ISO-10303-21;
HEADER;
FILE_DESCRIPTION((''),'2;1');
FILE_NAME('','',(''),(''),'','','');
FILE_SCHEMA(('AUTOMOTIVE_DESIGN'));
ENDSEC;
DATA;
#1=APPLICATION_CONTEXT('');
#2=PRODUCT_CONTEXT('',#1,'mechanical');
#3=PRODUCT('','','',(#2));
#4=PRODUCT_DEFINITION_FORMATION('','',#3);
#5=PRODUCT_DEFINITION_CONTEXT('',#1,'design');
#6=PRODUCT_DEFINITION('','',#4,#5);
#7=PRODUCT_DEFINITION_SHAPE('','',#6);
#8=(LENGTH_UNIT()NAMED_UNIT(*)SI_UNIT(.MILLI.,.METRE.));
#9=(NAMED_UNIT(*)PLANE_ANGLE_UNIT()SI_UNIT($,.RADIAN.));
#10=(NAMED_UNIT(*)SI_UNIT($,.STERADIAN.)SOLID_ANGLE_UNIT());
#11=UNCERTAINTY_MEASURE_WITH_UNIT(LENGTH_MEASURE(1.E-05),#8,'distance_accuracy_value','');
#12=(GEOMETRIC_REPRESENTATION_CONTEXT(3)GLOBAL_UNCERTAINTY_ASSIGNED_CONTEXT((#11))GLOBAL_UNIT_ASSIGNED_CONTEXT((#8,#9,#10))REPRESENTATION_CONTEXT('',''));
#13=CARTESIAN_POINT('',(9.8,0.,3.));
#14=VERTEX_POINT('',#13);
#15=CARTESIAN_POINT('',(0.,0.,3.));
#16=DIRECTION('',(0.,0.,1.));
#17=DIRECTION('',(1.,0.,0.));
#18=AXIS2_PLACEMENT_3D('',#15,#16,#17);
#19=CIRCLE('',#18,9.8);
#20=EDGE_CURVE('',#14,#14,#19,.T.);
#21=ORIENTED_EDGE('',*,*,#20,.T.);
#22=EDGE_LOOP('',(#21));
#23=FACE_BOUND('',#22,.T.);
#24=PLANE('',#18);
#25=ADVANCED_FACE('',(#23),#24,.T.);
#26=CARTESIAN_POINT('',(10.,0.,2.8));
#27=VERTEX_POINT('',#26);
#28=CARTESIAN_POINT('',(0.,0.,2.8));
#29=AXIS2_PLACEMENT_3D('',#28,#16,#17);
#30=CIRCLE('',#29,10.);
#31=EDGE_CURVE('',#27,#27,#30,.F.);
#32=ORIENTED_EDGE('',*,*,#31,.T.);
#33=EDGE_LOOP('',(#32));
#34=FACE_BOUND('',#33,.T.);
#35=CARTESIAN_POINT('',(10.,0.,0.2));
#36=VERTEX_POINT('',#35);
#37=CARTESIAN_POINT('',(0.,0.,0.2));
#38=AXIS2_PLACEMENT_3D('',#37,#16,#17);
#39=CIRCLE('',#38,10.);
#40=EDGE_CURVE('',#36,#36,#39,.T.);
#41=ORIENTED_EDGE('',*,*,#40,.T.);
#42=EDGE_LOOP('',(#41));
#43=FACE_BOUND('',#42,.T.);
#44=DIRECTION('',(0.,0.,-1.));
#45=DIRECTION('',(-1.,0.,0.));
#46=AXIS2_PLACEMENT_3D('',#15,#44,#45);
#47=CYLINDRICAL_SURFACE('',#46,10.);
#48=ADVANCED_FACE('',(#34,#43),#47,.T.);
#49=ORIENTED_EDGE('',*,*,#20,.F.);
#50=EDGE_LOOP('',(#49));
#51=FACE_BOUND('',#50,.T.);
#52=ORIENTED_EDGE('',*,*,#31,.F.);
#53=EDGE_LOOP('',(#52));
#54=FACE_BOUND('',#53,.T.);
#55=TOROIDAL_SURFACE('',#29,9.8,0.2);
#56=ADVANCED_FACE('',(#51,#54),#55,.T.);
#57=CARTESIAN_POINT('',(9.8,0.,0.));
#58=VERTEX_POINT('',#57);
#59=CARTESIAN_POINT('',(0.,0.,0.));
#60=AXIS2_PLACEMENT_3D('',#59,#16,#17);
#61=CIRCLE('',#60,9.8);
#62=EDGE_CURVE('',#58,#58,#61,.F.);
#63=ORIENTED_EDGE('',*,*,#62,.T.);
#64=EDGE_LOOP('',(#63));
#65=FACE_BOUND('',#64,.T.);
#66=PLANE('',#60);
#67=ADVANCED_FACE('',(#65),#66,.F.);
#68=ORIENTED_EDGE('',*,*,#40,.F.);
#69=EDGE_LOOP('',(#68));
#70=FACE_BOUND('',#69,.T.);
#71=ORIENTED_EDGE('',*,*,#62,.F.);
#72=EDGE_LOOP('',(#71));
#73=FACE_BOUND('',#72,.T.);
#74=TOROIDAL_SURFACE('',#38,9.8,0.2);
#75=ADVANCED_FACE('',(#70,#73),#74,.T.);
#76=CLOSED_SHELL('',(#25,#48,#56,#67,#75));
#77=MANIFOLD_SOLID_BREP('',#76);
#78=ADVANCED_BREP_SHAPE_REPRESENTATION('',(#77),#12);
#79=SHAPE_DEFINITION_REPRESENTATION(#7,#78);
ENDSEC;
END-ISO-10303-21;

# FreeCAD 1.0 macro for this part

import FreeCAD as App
import Part
import Sketcher
Q = App.Units.Quantity


def edges_at(feature, points):
    """Names of the edges that pass closest to the given points."""
    edges = feature.Shape.Edges
    near = lambda p: min(range(len(edges)), key=lambda i: edges[i].distToShape(Part.Vertex(*p))[0])
    return sorted({f"Edge{near(p) + 1}" for p in points})

doc = App.newDocument("Part")
body = doc.addObject("PartDesign::Body", "Body")

sketch1 = body.newObject("Sketcher::SketchObject", "Sketch")
sketch1.AttachmentSupport = (doc.getObject("XY_Plane"), [""])
sketch1.MapMode = "FlatFace"
sketch1.addGeometry(Part.Circle(App.Vector(0, 0, 0), App.Vector(0, 0, 1), 10), False)
sketch1.addConstraint([
    Sketcher.Constraint("Coincident", 0, 3, -1, 1),
    Sketcher.Constraint("Diameter", 0, Q("20 mm")),
])
pad1 = body.newObject("PartDesign::Pad", "Pad")
pad1.Profile = sketch1
pad1.Length = 3
doc.recompute()

fillet = body.newObject("PartDesign::Fillet", "Fillet")
fillet.Base = (pad1, edges_at(pad1, [(-10, 0, 0), (-10, 0, 3)]))
fillet.Radius = 0.2

doc.recompute()
